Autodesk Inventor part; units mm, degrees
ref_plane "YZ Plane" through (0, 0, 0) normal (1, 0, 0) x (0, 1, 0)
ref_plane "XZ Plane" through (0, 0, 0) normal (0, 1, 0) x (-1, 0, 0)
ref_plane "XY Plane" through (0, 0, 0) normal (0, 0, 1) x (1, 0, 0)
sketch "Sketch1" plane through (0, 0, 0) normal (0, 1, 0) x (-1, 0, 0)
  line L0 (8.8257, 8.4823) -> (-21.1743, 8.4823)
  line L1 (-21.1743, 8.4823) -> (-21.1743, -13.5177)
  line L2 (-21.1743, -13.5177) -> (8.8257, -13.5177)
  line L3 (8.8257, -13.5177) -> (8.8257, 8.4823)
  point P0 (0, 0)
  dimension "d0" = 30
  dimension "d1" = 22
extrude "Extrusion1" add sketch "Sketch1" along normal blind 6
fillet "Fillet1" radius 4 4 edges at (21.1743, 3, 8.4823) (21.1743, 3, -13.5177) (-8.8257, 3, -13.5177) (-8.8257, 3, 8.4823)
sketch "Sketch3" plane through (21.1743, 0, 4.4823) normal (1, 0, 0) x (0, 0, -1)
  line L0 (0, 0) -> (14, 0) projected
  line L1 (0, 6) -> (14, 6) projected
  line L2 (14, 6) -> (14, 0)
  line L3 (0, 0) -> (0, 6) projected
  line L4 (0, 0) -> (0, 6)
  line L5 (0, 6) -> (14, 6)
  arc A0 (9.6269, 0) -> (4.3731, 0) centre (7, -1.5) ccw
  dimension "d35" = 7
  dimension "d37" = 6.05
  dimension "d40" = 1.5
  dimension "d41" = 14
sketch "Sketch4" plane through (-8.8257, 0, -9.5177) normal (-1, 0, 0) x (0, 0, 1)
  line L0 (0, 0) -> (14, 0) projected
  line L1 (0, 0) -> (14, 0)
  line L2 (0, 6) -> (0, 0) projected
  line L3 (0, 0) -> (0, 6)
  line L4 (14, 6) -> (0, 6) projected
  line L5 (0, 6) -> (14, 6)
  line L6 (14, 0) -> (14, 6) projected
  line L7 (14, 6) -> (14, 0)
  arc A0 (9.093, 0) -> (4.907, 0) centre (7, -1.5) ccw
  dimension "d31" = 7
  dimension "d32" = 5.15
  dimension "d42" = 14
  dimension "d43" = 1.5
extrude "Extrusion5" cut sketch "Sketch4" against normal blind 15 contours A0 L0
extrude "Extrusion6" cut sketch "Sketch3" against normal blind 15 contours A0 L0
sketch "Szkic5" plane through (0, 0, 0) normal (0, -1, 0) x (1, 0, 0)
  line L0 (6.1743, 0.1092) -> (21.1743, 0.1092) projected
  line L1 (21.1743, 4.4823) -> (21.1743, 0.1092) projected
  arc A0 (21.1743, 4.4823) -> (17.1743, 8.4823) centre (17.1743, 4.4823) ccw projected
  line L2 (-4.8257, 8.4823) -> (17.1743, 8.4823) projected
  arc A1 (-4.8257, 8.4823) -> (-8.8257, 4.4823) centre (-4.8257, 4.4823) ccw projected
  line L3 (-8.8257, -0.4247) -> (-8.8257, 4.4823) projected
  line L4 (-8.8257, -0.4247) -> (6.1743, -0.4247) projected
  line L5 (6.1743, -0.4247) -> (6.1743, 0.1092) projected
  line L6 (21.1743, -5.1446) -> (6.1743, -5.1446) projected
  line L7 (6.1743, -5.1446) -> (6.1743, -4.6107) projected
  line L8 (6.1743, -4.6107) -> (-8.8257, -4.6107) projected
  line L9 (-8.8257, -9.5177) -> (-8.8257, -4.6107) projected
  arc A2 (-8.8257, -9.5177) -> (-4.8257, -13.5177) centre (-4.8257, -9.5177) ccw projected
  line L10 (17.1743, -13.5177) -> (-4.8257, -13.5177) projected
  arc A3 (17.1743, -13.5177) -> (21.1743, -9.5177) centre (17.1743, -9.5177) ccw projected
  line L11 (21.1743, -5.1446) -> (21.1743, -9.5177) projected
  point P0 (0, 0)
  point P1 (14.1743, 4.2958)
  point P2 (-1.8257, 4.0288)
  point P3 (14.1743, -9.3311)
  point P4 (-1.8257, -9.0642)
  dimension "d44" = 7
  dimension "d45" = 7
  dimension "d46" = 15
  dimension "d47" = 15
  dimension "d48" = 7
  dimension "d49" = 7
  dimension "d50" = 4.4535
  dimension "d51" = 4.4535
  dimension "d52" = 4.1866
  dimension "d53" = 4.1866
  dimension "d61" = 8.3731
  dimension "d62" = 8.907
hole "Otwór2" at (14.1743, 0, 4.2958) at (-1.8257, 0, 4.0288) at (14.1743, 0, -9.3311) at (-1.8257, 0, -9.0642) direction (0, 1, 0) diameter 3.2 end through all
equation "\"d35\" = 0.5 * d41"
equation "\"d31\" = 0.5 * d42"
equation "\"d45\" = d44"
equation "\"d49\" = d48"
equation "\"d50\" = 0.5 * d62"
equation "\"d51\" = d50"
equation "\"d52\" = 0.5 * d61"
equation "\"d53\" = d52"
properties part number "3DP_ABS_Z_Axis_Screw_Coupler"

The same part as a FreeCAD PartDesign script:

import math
import FreeCAD as App
import Part
import Sketcher

V = App.Vector
Q = App.Units.Quantity


def edges_at(feature, points):
    """Names of the edges that pass closest to the given points."""
    edges = feature.Shape.Edges
    near = lambda p: min(range(len(edges)), key=lambda i: edges[i].distToShape(Part.Vertex(*p))[0])
    return sorted({f"Edge{near(p) + 1}" for p in points})


def add_polygon(sketch, points):
    """Adds a closed chain of lines whose ends are joined by coincident constraints."""
    first, n = sketch.GeometryCount, len(points)
    for a, b in zip(points, points[1:] + points[:1]):
        sketch.addGeometry(Part.LineSegment(App.Vector(*a, 0), App.Vector(*b, 0)), False)
    for i in range(n):
        sketch.addConstraint(Sketcher.Constraint("Coincident", first + i, 2, first + (i + 1) % n, 1))

doc = App.newDocument("Part")
params = doc.addObject("Spreadsheet::Sheet", "Params")
for row, (alias, value) in enumerate([
    ("sketch1_width", "30 mm"),
    ("sketch1_height", "22 mm"),
    ("pad1_length", "6 mm"),
    ("fillet_radius", "4 mm"),
    ("pocket1_length", "15 mm"),
    ("pocket2_length", "15 mm"),
    ("sketch4_diameter", "3.2 mm"),
    ("hole_diameter", "3.2 mm"),
], start=1):
    params.set(f"A{row}", alias)
    params.set(f"B{row}", "=" + value)
    params.setAlias(f"B{row}", alias)

body = doc.addObject("PartDesign::Body", "Body")

# Sketch on XZ plane
sketch1 = body.newObject("Sketcher::SketchObject", "Sketch")
sketch1.AttachmentSupport = (doc.getObject("XZ_Plane"), [""])
sketch1.MapMode = "FlatFace"
add_polygon(sketch1, [(-9, -14), (-9, 8), (21, 8), (21, -14)])  # lines 0-3
sketch1.addConstraint(Sketcher.Constraint("Vertical", 0))
sketch1.addConstraint(Sketcher.Constraint("Horizontal", 1))
sketch1.addConstraint(Sketcher.Constraint("Vertical", 2))
sketch1.addConstraint(Sketcher.Constraint("Horizontal", 3))
sketch1.addConstraint(Sketcher.Constraint("DistanceX", 1, 1, 1, 2, Q("30 mm")))
sketch1.addConstraint(Sketcher.Constraint("DistanceY", 0, 1, 0, 2, Q("22 mm")))
sketch1.addConstraint(Sketcher.Constraint("DistanceX", 0, 2, -1, 1, Q("8.8257 mm")))
sketch1.addConstraint(Sketcher.Constraint("DistanceY", -1, 1, 0, 2, Q("8.4823 mm")))
sketch1.setExpression("Constraints[8]", "Params.sketch1_width")
sketch1.setExpression("Constraints[9]", "Params.sketch1_height")
pad1 = body.newObject("PartDesign::Pad", "Pad")
pad1.Profile = sketch1
pad1.setExpression("Length", "Params.pad1_length")
pad1.Reversed = True
doc.recompute()

fillet = body.newObject("PartDesign::Fillet", "Fillet")
fillet.Base = (pad1, edges_at(pad1, [
    (21.174, 3, 8.482),
    (21.174, 3, -13.518),
    (-8.826, 3, -13.518),
    (-8.826, 3, 8.482),
]))
fillet.setExpression("Radius", "Params.fillet_radius")

# Sketch on YZ plane
sketch2 = body.newObject("Sketcher::SketchObject", "Sketch001")
sketch2.AttachmentSupport = (doc.getObject("YZ_Plane"), [""])
sketch2.MapMode = "FlatFace"
sketch2.AttachmentOffset = App.Placement(V(0, 0, -8.8257), App.Rotation())
sketch2.addGeometry(Part.ArcOfCircle(Part.Circle(V(-1.5, -2.5, 0), V(0, 0, 1), 2.6), math.radians(-54), math.radians(54)), False)
sketch2.addGeometry(Part.LineSegment(V(0, -4.6, 0), V(0, -0.4, 0)), False)
sketch2.addConstraint(Sketcher.Constraint("Coincident", 0, 1, 1, 1))
sketch2.addConstraint(Sketcher.Constraint("Coincident", 1, 2, 0, 2))
sketch2.addConstraint(Sketcher.Constraint("Vertical", 1))
sketch2.addConstraint(Sketcher.Constraint("PointOnObject", 0, 1, -2))
sketch2.addConstraint(Sketcher.Constraint("Radius", 0, Q("2.575 mm")))
sketch2.addConstraint(Sketcher.Constraint("DistanceX", 0, 3, -1, 1, Q("1.5 mm")))
sketch2.addConstraint(Sketcher.Constraint("DistanceY", 0, 3, -1, 1, Q("2.5177 mm")))
pocket1 = body.newObject("PartDesign::Pocket", "Pocket")
pocket1.Profile = sketch2
pocket1.setExpression("Length", "Params.pocket1_length")
pocket1.Reversed = True

# Sketch on YZ plane
sketch3 = body.newObject("Sketcher::SketchObject", "Sketch002")
sketch3.AttachmentSupport = (doc.getObject("YZ_Plane"), [""])
sketch3.MapMode = "FlatFace"
sketch3.AttachmentOffset = App.Placement(V(0, 0, 21.1743), App.Rotation())
sketch3.addGeometry(Part.ArcOfCircle(Part.Circle(V(-1.5, -2.5, 0), V(0, 0, 1), 3), math.radians(-60), math.radians(60)), False)
sketch3.addGeometry(Part.LineSegment(V(0, 0.1, 0), V(0, -5.1, 0)), False)
sketch3.addConstraint(Sketcher.Constraint("Coincident", 0, 1, 1, 2))
sketch3.addConstraint(Sketcher.Constraint("Coincident", 1, 1, 0, 2))
sketch3.addConstraint(Sketcher.Constraint("Vertical", 1))
sketch3.addConstraint(Sketcher.Constraint("PointOnObject", 0, 1, -2))
sketch3.addConstraint(Sketcher.Constraint("Radius", 0, Q("3.025 mm")))
sketch3.addConstraint(Sketcher.Constraint("DistanceX", 0, 3, -1, 1, Q("1.5 mm")))
sketch3.addConstraint(Sketcher.Constraint("DistanceY", 0, 3, -1, 1, Q("2.5177 mm")))
pocket2 = body.newObject("PartDesign::Pocket", "Pocket001")
pocket2.Profile = sketch3
pocket2.setExpression("Length", "Params.pocket2_length")

# Sketch on XZ plane
sketch4 = body.newObject("Sketcher::SketchObject", "Sketch003")
sketch4.AttachmentSupport = (doc.getObject("XZ_Plane"), [""])
sketch4.MapMode = "FlatFace"
sketch4.addGeometry(Part.Circle(V(14.2, 4.3, 0), V(0, 0, 1), 1.6), False)
sketch4.addGeometry(Part.Circle(V(-1.8, 4, 0), V(0, 0, 1), 1.6), False)
sketch4.addGeometry(Part.Circle(V(14.2, -9.3, 0), V(0, 0, 1), 1.6), False)
sketch4.addGeometry(Part.Circle(V(-1.8, -9.1, 0), V(0, 0, 1), 1.6), False)
sketch4.addConstraint(Sketcher.Constraint("Equal", 0, 1))
sketch4.addConstraint(Sketcher.Constraint("Equal", 1, 2))
sketch4.addConstraint(Sketcher.Constraint("Equal", 2, 3))
sketch4.addConstraint(Sketcher.Constraint("Vertical", 0, 3, 2, 3))
sketch4.addConstraint(Sketcher.Constraint("Vertical", 1, 3, 3, 3))
sketch4.addConstraint(Sketcher.Constraint("Diameter", 0, Q("3.2 mm")))
sketch4.addConstraint(Sketcher.Constraint("DistanceX", 1, 3, 0, 3, Q("16 mm")))
sketch4.addConstraint(Sketcher.Constraint("DistanceY", 2, 3, 1, 3, Q("13.36 mm")))
sketch4.addConstraint(Sketcher.Constraint("DistanceY", 3, 3, 0, 3, Q("13.36 mm")))
sketch4.addConstraint(Sketcher.Constraint("DistanceY", 2, 3, -1, 1, Q("9.331 mm")))
sketch4.addConstraint(Sketcher.Constraint("DistanceY", 1, 3, 0, 3, Q("0.267 mm")))
sketch4.addConstraint(Sketcher.Constraint("DistanceX", -1, 1, 0, 3, Q("14.1743 mm")))
sketch4.setExpression("Constraints[5]", "Params.sketch4_diameter")
doc.recompute()
hole = body.newObject("PartDesign::Hole", "Hole")
hole.Profile = sketch4
hole.ThreadType = "None"
hole.setExpression("Diameter", "Params.hole_diameter")
hole.DepthType = "ThroughAll"

doc.recompute()
